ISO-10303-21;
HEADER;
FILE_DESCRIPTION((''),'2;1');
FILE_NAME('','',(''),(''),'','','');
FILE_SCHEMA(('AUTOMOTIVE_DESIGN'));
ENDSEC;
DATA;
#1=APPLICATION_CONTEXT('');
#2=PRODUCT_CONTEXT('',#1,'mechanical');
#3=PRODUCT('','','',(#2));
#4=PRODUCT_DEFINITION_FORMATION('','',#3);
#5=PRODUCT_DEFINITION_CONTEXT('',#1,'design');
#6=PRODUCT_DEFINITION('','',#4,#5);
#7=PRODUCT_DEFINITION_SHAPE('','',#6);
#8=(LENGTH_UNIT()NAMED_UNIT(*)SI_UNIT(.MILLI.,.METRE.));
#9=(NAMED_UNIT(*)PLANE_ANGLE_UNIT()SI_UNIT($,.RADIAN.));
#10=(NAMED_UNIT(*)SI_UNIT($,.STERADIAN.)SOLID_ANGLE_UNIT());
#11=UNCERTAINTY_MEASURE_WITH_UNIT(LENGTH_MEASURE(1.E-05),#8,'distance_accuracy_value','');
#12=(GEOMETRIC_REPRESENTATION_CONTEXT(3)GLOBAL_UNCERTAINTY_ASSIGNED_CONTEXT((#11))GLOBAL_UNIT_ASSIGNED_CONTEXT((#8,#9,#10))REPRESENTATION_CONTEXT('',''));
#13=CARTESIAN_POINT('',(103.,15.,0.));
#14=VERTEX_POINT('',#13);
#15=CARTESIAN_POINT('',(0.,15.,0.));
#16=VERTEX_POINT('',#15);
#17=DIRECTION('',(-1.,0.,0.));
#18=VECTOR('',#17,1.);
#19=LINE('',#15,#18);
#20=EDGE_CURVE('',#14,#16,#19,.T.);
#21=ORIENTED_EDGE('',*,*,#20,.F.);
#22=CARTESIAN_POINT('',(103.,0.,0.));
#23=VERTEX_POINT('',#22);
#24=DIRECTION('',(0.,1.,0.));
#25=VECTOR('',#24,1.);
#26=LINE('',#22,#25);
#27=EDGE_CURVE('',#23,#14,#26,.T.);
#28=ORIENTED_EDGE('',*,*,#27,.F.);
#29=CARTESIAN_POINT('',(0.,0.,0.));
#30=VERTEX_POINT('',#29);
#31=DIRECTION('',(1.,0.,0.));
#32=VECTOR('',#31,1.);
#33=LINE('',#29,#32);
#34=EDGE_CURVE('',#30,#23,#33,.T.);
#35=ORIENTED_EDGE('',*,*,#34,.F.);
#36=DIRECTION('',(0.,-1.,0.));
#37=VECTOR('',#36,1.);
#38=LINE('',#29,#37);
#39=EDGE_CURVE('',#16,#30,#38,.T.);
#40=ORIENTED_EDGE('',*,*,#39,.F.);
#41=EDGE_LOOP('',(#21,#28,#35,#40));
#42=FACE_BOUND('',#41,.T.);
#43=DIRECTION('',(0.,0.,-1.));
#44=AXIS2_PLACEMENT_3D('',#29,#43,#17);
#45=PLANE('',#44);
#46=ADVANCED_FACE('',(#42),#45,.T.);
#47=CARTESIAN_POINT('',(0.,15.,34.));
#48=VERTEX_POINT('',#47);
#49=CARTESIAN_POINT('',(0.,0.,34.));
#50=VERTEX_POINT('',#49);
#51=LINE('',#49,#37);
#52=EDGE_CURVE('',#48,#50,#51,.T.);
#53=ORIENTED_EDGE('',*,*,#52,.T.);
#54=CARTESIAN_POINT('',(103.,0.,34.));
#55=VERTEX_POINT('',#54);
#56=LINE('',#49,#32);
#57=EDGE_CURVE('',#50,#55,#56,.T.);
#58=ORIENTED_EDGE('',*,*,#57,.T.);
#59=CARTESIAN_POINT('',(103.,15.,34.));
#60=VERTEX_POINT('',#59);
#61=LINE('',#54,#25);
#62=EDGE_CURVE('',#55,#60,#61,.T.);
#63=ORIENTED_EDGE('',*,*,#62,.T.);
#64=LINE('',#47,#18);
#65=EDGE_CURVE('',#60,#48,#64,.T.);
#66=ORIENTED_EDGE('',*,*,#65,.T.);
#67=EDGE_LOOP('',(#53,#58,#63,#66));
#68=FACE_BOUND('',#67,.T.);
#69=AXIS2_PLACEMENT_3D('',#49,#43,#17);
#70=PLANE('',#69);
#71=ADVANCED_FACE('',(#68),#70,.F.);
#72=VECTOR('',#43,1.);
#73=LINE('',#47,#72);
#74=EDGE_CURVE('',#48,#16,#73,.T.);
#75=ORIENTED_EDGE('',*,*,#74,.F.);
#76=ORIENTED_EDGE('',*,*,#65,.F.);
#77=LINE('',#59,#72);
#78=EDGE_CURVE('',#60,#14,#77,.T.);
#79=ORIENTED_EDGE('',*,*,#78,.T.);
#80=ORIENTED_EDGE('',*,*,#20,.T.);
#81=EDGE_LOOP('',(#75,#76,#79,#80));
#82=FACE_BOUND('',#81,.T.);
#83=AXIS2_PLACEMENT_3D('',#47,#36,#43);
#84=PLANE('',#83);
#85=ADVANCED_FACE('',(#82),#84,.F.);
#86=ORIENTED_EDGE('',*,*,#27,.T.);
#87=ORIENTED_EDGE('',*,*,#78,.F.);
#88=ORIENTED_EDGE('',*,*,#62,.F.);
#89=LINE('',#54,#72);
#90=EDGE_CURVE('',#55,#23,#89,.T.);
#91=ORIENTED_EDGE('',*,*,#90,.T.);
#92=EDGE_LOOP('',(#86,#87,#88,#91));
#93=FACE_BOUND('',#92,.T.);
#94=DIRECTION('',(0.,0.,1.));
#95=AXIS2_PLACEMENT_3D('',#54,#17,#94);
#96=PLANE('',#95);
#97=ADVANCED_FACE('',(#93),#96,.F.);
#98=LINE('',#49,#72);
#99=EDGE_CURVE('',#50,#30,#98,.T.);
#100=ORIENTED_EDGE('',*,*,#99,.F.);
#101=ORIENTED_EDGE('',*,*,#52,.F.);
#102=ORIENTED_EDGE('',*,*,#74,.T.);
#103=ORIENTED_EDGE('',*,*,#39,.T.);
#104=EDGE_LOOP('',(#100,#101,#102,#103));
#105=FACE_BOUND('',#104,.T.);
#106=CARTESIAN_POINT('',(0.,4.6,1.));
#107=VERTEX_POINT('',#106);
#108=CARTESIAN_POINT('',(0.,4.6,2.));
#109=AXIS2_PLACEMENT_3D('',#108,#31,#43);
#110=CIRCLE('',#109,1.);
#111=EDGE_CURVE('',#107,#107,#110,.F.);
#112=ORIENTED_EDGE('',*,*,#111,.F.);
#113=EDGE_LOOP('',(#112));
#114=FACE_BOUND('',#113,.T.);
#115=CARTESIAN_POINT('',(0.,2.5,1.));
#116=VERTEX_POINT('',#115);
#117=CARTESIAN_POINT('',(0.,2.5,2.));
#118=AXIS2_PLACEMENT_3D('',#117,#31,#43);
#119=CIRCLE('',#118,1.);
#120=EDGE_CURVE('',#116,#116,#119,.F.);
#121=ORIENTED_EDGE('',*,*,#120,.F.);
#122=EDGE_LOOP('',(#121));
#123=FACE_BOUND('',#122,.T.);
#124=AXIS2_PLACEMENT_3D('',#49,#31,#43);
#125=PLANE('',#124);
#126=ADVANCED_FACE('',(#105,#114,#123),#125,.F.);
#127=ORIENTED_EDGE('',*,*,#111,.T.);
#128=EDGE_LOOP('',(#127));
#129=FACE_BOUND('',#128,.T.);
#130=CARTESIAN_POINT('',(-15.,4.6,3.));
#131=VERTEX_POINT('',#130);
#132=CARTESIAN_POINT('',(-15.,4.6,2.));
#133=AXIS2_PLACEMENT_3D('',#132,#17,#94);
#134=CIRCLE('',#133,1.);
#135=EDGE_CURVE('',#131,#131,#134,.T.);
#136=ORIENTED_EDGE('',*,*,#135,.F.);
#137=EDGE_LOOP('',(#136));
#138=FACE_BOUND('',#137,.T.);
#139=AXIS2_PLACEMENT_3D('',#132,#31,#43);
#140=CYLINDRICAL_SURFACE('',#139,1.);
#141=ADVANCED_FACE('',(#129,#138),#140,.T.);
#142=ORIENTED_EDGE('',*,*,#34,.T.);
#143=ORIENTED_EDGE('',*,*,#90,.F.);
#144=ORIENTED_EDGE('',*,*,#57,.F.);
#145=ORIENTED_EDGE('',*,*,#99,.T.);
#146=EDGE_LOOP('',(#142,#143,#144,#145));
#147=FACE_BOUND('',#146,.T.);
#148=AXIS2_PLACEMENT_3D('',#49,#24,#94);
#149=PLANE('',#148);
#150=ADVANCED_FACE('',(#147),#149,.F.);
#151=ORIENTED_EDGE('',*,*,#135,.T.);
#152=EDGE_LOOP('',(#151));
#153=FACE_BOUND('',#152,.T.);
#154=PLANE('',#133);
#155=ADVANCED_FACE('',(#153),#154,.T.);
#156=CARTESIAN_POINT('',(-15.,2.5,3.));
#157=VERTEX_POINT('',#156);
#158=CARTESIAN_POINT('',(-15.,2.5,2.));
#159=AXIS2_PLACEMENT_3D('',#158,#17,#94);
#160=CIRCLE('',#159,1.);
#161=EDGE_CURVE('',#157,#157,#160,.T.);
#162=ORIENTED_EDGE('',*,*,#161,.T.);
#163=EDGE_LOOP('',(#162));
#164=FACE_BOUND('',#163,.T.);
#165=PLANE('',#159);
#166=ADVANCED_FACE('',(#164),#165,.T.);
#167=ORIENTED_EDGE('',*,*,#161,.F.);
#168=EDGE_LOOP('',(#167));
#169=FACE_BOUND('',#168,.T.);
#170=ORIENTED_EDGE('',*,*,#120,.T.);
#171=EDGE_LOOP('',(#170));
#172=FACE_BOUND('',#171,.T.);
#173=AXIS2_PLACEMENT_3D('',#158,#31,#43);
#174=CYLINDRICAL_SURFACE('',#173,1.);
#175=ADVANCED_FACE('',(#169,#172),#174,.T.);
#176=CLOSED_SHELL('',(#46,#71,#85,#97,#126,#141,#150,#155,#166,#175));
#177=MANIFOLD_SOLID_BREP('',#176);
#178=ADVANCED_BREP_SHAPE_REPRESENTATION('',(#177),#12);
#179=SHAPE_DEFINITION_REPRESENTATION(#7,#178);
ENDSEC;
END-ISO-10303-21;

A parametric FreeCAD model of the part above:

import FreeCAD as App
import Part
import Sketcher
from FreeCAD import Vector
Q = App.Units.Quantity

doc = App.newDocument("Part")
body = doc.addObject("PartDesign::Body", "Body")

# Sketch on XY plane
sketch1 = doc.addObject("Sketcher::SketchObject", "Sketch")
body.addObject(sketch1)
sketch1.AttachmentSupport = (doc.XY_Plane, [""])
sketch1.MapMode = "FlatFace"
sketch1.addGeometry([
    Part.LineSegment(Vector(0, 15, 0), Vector(0, 0, 0)),
    Part.LineSegment(Vector(0, 0, 0), Vector(103, 0, 0)),
    Part.LineSegment(Vector(103, 0, 0), Vector(103, 15, 0)),
    Part.LineSegment(Vector(103, 15, 0), Vector(0, 15, 0)),
], False)
sketch1.addConstraint([
    Sketcher.Constraint("Coincident", 0, 2, 1, 1),
    Sketcher.Constraint("Coincident", 1, 2, 2, 1),
    Sketcher.Constraint("Coincident", 2, 2, 3, 1),
    Sketcher.Constraint("Coincident", 3, 2, 0, 1),
    Sketcher.Constraint("Vertical", 0),
    Sketcher.Constraint("Horizontal", 1),
    Sketcher.Constraint("Vertical", 2),
    Sketcher.Constraint("Horizontal", 3),
    Sketcher.Constraint("Coincident", 0, 2, -1, 1),
    Sketcher.Constraint("DistanceX", 1, 1, 1, 2, Q("103 mm")),
    Sketcher.Constraint("DistanceY", 0, 2, 0, 1, Q("15 mm")),
])
pad1 = doc.addObject("PartDesign::Pad", "Pad")
body.addObject(pad1)
pad1.Profile = sketch1
pad1.Length = 34

# Sketch on YZ plane
sketch2 = doc.addObject("Sketcher::SketchObject", "Sketch001")
body.addObject(sketch2)
sketch2.AttachmentSupport = (doc.YZ_Plane, [""])
sketch2.MapMode = "FlatFace"
sketch2.addGeometry([
    Part.Circle(Vector(2.5, 2, 0), Vector(0, 0, 1), 1),
    Part.Circle(Vector(4.6, 2, 0), Vector(0, 0, 1), 1),
], False)
sketch2.addConstraint([
    Sketcher.Constraint("Equal", 0, 1),
    Sketcher.Constraint("Horizontal", 0, 3, 1, 3),
    Sketcher.Constraint("Diameter", 0, Q("2 mm")),
    Sketcher.Constraint("DistanceY", -1, 1, 0, 3, Q("2 mm")),
    Sketcher.Constraint("DistanceX", -1, 1, 0, 3, Q("2.5 mm")),
    Sketcher.Constraint("DistanceX", -1, 1, 1, 3, Q("4.6 mm")),
])
pad2 = doc.addObject("PartDesign::Pad", "Pad001")
body.addObject(pad2)
pad2.Profile = sketch2
pad2.Length = 15
pad2.Reversed = True

doc.recompute()
